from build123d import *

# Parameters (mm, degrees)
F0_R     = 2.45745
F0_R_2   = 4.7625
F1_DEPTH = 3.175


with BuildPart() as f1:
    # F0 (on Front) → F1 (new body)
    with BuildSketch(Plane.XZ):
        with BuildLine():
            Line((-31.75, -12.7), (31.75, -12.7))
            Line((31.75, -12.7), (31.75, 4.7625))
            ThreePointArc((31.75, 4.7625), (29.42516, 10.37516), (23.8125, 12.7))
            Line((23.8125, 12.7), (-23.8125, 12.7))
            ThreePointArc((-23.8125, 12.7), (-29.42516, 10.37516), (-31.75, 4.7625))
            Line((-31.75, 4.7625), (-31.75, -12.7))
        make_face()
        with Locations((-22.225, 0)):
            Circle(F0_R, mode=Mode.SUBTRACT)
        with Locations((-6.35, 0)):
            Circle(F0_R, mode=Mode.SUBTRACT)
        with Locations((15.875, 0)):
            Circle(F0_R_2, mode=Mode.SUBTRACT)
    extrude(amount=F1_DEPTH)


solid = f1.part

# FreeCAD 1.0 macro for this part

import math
import FreeCAD as App
import Part
import Sketcher
Q = App.Units.Quantity

doc = App.newDocument("Part")
body = doc.addObject("PartDesign::Body", "Body")

# Sketch on XZ plane
sketch1 = body.newObject("Sketcher::SketchObject", "Sketch")
sketch1.AttachmentSupport = (doc.getObject("XZ_Plane"), [""])
sketch1.MapMode = "FlatFace"
sketch1.addGeometry([
    Part.LineSegment(App.Vector(-31.8, -12.7, 0), App.Vector(31.8, -12.7, 0)),  # 0
    Part.LineSegment(App.Vector(31.8, -12.7, 0), App.Vector(31.8, 4.8, 0)),  # 1
    Part.ArcOfCircle(Part.Circle(App.Vector(23.8, 4.8, 0), App.Vector(0, 0, 1), 7.9), math.radians(0), math.radians(90)),  # 2
    Part.LineSegment(App.Vector(23.8, 12.7, 0), App.Vector(-23.8, 12.7, 0)),  # 3
    Part.ArcOfCircle(Part.Circle(App.Vector(-23.8, 4.8, 0), App.Vector(0, 0, 1), 7.9), math.radians(90), math.radians(180)),  # 4
    Part.LineSegment(App.Vector(-31.8, 4.8, 0), App.Vector(-31.8, -12.7, 0)),  # 5
    Part.Circle(App.Vector(-22.2, 0, 0), App.Vector(0, 0, 1), 2.5),  # 6
    Part.Circle(App.Vector(-6.3, 0, 0), App.Vector(0, 0, 1), 2.5),  # 7
    Part.Circle(App.Vector(15.9, 0, 0), App.Vector(0, 0, 1), 4.8),  # 8
], False)
sketch1.addConstraint([
    Sketcher.Constraint("Coincident", 0, 2, 1, 1),
    Sketcher.Constraint("Tangent", 1, 2, 2, 1),
    Sketcher.Constraint("Tangent", 2, 2, 3, 1),
    Sketcher.Constraint("Tangent", 3, 2, 4, 1),
    Sketcher.Constraint("Tangent", 4, 2, 5, 1),
    Sketcher.Constraint("Coincident", 5, 2, 0, 1),
    Sketcher.Constraint("Horizontal", 0),
    Sketcher.Constraint("Vertical", 1),
    Sketcher.Constraint("Horizontal", 3),
    Sketcher.Constraint("Vertical", 5),
    Sketcher.Constraint("Equal", 2, 4),
    Sketcher.Constraint("Equal", 6, 7),
    Sketcher.Constraint("PointOnObject", 6, 3, -1),
    Sketcher.Constraint("PointOnObject", 7, 3, -1),
    Sketcher.Constraint("PointOnObject", 8, 3, -1),
    Sketcher.Constraint("Diameter", 8, Q("0.375 in")),
    Sketcher.Constraint("DistanceX", 0, 1, 0, 2, Q("2.5 in")),
    Sketcher.Constraint("Radius", 2, Q("0.3125 in")),
    Sketcher.Constraint("DistanceY", 0, 2, 2, 2, Q("1 in")),
    Sketcher.Constraint("DistanceX", 4, 2, 7, 3, Q("1 in")),
    Sketcher.Constraint("Diameter", 6, Q("0.1935 in")),
    Sketcher.Constraint("DistanceY", 0, 2, -1, 1, Q("0.5 in")),
    Sketcher.Constraint("DistanceX", 6, 3, 8, 3, Q("1.5 in")),
    Sketcher.Constraint("DistanceX", 7, 3, -1, 1, Q("0.25 in")),
    Sketcher.Constraint("DistanceX", 6, 3, -1, 1, Q("0.875 in")),
])
pad1 = body.newObject("PartDesign::Pad", "Pad")
pad1.Profile = sketch1
pad1.Length = Q("0.125 in")

doc.recompute()
